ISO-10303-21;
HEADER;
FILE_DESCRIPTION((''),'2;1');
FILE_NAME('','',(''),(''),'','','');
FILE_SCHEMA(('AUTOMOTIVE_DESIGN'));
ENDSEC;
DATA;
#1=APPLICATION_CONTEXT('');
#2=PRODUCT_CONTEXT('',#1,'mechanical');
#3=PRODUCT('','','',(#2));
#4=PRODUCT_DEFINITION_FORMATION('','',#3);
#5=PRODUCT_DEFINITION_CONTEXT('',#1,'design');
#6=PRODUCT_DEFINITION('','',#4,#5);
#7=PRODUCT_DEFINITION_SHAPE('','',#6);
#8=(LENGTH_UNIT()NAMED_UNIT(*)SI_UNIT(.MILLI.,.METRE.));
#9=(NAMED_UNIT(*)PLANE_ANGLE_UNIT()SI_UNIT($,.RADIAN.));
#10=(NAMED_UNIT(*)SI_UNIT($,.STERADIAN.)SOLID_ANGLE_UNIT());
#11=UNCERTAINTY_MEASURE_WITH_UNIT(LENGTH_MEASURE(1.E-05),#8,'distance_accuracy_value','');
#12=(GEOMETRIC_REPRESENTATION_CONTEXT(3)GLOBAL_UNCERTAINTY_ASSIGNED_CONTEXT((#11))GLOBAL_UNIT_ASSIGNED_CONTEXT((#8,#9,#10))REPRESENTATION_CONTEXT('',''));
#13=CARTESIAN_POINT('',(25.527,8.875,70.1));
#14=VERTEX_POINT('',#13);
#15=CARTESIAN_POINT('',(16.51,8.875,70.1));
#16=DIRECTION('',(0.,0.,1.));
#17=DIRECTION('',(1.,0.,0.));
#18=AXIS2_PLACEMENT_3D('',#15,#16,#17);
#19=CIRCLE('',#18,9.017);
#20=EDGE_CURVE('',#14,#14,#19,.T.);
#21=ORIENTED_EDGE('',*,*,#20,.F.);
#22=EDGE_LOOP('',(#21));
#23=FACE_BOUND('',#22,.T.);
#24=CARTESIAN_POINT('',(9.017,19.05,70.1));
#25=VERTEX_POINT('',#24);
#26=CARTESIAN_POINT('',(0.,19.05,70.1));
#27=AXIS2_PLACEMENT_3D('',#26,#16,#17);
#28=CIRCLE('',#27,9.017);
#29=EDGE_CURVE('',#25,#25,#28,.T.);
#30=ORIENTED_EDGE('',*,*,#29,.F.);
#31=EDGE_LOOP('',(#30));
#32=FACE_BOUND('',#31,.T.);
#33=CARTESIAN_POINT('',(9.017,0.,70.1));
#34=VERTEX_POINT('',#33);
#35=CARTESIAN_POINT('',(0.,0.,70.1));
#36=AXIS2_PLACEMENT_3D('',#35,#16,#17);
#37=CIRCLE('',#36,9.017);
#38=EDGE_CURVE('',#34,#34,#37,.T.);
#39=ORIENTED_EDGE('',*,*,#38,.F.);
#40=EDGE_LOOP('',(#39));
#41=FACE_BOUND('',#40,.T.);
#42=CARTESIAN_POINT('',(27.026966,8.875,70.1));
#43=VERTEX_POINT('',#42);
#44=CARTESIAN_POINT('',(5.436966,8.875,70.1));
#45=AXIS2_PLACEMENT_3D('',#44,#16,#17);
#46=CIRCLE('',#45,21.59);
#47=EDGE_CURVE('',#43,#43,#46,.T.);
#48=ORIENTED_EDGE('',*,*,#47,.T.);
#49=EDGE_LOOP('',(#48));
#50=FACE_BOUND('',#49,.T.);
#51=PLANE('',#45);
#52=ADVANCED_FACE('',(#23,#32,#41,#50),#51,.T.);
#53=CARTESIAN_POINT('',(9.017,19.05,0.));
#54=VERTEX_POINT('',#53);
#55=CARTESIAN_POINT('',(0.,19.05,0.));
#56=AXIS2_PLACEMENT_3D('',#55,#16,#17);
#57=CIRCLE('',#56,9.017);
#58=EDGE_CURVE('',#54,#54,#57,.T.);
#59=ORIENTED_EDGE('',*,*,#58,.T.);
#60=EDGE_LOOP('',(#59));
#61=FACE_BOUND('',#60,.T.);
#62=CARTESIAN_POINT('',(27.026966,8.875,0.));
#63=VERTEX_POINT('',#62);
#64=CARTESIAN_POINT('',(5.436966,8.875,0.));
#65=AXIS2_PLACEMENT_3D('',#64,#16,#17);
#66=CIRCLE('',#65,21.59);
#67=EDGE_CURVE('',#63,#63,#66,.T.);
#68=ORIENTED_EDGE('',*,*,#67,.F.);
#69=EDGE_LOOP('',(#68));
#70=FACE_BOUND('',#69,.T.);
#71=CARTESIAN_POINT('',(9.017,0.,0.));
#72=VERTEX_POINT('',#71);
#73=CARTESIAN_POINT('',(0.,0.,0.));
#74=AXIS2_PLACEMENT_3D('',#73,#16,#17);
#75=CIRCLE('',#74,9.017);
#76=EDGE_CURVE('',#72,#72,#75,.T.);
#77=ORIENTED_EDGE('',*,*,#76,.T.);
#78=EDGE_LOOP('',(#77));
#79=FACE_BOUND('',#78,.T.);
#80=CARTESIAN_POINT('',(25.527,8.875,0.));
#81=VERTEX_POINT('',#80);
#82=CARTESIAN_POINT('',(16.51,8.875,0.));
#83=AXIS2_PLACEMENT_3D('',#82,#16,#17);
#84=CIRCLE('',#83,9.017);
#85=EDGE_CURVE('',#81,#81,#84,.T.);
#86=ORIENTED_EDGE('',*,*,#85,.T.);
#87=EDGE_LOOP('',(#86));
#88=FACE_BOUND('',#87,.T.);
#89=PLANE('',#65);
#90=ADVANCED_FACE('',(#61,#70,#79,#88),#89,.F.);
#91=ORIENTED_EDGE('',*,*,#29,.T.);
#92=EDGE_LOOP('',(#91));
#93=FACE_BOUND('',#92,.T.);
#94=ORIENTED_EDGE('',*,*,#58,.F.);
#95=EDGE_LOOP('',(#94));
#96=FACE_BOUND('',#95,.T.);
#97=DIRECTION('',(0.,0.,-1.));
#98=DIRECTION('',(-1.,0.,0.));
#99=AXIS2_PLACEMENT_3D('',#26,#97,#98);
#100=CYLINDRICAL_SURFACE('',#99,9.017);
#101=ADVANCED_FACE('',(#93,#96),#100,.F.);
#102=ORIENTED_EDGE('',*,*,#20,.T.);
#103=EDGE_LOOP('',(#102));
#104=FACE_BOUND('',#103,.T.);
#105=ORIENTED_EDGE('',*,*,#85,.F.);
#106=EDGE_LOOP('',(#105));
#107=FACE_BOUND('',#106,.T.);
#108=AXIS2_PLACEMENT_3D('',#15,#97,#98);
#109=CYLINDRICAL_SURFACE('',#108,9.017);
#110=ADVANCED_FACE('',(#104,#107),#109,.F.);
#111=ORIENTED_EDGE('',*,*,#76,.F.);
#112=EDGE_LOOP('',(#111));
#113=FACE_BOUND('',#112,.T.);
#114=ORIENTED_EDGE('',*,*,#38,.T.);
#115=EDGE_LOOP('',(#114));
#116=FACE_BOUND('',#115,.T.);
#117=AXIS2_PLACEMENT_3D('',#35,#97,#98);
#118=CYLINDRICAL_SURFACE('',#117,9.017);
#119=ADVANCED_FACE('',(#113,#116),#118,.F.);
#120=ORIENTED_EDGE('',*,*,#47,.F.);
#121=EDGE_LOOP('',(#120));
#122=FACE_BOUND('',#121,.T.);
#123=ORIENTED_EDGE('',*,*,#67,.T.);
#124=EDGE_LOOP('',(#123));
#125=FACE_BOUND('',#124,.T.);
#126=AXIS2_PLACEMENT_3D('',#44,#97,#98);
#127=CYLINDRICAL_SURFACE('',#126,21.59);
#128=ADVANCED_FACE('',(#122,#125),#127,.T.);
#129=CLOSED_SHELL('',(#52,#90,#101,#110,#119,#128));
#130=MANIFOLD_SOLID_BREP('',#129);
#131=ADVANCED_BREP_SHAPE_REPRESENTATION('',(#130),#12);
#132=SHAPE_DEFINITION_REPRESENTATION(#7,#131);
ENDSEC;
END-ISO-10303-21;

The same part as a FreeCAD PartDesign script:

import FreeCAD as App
import Part
import Sketcher
from FreeCAD import Vector
Q = App.Units.Quantity

doc = App.newDocument("Part")
params = doc.addObject("Spreadsheet::Sheet", "Params")
for row, (alias, value) in enumerate([
    ("sketch1_diameter", "1.7 in"),
    ("sketch1_diameter2", "0.71 in"),
    ("pad1_length", "70.1 mm"),
], start=1):
    params.set(f"A{row}", alias)
    params.set(f"B{row}", "=" + value)
    params.setAlias(f"B{row}", alias)

body = doc.addObject("PartDesign::Body", "Body")

sketch1 = doc.addObject("Sketcher::SketchObject", "Sketch")
body.addObject(sketch1)
sketch1.AttachmentSupport = (doc.XY_Plane, [""])
sketch1.MapMode = "FlatFace"
sketch1.addGeometry([
    Part.Circle(Vector(5, 9, 0), Vector(0, 0, 1), 22),
    Part.Circle(Vector(0, 0, 0), Vector(0, 0, 1), 9),
    Part.Circle(Vector(17, 9, 0), Vector(0, 0, 1), 9),
    Part.Circle(Vector(0, 19, 0), Vector(0, 0, 1), 9),
], False)
sketch1.addConstraint([
    Sketcher.Constraint("Coincident", 1, 3, -1, 1),
    Sketcher.Constraint("Equal", 1, 2),
    Sketcher.Constraint("Equal", 2, 3),
    Sketcher.Constraint("PointOnObject", 3, 3, -2),
    Sketcher.Constraint("Horizontal", 0, 3, 2, 3),
    Sketcher.Constraint("Diameter", 0, Q("1.7 in")),
    Sketcher.Constraint("Diameter", 1, Q("0.71 in")),
    Sketcher.Constraint("DistanceX", -1, 1, 2, 3, Q("0.65 in")),
    Sketcher.Constraint("DistanceY", -1, 1, 3, 3, Q("0.75 in")),
    Sketcher.Constraint("DistanceY", -1, 1, 0, 3, Q("8.875 mm")),
    Sketcher.Constraint("DistanceX", -1, 1, 0, 3, Q("5.436966 mm")),
])
sketch1.setExpression("Constraints[5]", "Params.sketch1_diameter")
sketch1.setExpression("Constraints[6]", "Params.sketch1_diameter2")
pad1 = doc.addObject("PartDesign::Pad", "Pad")
body.addObject(pad1)
pad1.Profile = sketch1
pad1.setExpression("Length", "Params.pad1_length")

doc.recompute()
